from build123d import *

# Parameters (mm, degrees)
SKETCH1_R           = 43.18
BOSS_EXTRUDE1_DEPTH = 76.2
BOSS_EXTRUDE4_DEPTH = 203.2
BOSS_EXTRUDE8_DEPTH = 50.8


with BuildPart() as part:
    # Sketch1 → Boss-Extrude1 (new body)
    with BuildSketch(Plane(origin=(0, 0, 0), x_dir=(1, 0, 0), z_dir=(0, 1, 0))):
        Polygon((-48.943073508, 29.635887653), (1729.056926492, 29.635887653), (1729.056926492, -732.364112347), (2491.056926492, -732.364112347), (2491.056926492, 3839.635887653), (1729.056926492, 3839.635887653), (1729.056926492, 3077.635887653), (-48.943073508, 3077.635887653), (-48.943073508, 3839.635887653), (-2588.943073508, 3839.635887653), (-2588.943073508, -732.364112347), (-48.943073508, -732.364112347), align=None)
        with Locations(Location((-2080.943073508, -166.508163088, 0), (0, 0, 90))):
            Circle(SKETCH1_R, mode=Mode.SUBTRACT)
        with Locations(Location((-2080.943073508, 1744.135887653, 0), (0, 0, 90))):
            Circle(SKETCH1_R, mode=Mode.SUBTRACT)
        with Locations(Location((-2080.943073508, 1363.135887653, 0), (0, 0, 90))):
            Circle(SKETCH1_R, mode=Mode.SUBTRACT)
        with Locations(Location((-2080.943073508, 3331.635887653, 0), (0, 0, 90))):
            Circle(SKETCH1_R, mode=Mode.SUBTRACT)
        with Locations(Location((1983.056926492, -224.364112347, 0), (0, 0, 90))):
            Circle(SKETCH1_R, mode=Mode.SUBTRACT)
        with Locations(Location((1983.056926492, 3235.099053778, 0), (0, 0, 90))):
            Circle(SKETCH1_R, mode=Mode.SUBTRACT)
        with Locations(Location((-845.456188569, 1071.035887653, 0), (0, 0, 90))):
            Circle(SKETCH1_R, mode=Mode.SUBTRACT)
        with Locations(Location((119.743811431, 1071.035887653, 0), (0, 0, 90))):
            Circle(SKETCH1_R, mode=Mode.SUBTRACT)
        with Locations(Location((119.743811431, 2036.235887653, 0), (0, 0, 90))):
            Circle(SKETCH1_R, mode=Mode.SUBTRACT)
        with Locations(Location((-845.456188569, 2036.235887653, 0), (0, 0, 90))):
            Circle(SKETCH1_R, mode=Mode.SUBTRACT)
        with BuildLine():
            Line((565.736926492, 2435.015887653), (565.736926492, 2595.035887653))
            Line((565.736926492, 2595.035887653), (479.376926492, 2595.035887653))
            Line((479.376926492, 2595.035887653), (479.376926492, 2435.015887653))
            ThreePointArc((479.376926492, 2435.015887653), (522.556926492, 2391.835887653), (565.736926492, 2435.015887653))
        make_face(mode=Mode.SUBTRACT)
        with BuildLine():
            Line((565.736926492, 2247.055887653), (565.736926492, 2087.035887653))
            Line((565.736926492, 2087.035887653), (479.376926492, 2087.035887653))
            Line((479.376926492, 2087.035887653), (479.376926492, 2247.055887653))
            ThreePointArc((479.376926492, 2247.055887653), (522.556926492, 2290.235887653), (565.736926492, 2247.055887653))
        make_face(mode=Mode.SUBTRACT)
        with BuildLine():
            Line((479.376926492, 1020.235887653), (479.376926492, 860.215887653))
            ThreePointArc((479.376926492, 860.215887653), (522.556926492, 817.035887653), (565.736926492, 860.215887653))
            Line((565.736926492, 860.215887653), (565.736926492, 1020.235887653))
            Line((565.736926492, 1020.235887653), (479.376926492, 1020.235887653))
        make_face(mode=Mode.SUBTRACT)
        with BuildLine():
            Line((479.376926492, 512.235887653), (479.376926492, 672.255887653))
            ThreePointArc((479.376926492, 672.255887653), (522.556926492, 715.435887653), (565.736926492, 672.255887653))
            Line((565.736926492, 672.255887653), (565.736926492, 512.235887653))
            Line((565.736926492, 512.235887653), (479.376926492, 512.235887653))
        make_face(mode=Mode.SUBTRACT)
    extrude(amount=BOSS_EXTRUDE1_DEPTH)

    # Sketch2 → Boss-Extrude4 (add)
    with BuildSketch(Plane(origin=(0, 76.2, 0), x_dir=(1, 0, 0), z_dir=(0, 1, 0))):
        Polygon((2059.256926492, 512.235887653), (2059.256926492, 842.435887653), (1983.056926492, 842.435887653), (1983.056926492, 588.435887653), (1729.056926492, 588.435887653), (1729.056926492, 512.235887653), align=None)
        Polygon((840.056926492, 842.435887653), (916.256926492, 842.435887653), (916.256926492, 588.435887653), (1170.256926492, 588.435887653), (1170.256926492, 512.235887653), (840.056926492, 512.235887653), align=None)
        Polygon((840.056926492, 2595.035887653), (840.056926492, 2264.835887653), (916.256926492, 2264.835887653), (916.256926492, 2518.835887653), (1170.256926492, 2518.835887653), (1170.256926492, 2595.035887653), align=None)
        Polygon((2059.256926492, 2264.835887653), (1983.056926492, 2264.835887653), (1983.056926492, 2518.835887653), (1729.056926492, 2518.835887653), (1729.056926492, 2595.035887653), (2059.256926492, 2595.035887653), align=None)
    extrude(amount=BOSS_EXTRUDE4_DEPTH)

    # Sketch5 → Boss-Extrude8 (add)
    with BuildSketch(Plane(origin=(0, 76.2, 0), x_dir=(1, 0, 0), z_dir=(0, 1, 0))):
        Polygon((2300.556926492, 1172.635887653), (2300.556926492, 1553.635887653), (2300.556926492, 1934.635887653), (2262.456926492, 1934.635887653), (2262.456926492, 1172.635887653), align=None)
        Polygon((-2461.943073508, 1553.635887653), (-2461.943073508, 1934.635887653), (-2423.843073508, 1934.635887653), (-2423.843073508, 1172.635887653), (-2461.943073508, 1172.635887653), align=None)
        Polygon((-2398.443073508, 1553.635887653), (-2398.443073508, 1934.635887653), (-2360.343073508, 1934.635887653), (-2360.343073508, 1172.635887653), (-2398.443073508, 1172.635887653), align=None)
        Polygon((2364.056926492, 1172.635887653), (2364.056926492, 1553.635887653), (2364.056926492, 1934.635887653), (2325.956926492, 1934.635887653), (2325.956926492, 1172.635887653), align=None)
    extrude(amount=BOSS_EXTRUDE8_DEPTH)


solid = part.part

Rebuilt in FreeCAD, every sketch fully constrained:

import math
import FreeCAD as App
import Part
import Sketcher
Q = App.Units.Quantity


def add_polygon(sketch, points):
    """Adds a closed chain of lines whose ends are joined by coincident constraints."""
    first, n = sketch.GeometryCount, len(points)
    for a, b in zip(points, points[1:] + points[:1]):
        sketch.addGeometry(Part.LineSegment(App.Vector(*a, 0), App.Vector(*b, 0)), False)
    for i in range(n):
        sketch.addConstraint(Sketcher.Constraint("Coincident", first + i, 2, first + (i + 1) % n, 1))

doc = App.newDocument("Part")
params = doc.addObject("Spreadsheet::Sheet", "Params")
for row, (alias, value) in enumerate([
    ("sketch1_diameter", "3.4 in"),
    ("sketch1_width", "70 in"),
    ("sketch1_width2", "30 in"),
    ("sketch1_width3", "100 in"),
    ("sketch1_height", "180 in"),
    ("pad1_length", "3 in"),
    ("sketch2_width", "3 in"),
    ("sketch2_width2", "10 in"),
    ("pad2_length", "8 in"),
    ("sketch3_height", "30 in"),
    ("sketch3_width", "1.5 in"),
    ("pad3_length", "2 in"),
], start=1):
    params.set(f"A{row}", alias)
    params.set(f"B{row}", "=" + value)
    params.setAlias(f"B{row}", alias)

body = doc.addObject("PartDesign::Body", "Body")

# Sketch on XZ plane
sketch1 = body.newObject("Sketcher::SketchObject", "Sketch")
sketch1.AttachmentSupport = (doc.getObject("XZ_Plane"), [""])
sketch1.MapMode = "FlatFace"
add_polygon(sketch1, [(-49, -30), (1729, -30), (1729, 732), (2491, 732), (2491, -3840), (1729, -3840), (1729, -3078), (-49, -3078), (-49, -3840), (-2589, -3840), (-2589, 732), (-49, 732)])  # lines 0-11
sketch1.addGeometry(Part.Circle(App.Vector(-2081, 167, 0), App.Vector(0, 0, 1), 43), False)  # 12
sketch1.addGeometry(Part.Circle(App.Vector(-2081, -1363, 0), App.Vector(0, 0, 1), 43), False)  # 13
sketch1.addGeometry(Part.Circle(App.Vector(-845, -1071, 0), App.Vector(0, 0, 1), 43), False)  # 14
sketch1.addGeometry(Part.LineSegment(App.Vector(566, -512, 0), App.Vector(479, -512, 0)), False)  # 15
sketch1.addGeometry(Part.LineSegment(App.Vector(479, -512, 0), App.Vector(479, -672, 0)), False)  # 16
sketch1.addGeometry(Part.ArcOfCircle(Part.Circle(App.Vector(523, -672, 0), App.Vector(0, 0, 1), 43), math.radians(180), math.radians(360)), False)  # 17
sketch1.addGeometry(Part.LineSegment(App.Vector(566, -672, 0), App.Vector(566, -512, 0)), False)  # 18
sketch1.addGeometry(Part.Circle(App.Vector(1983, 224, 0), App.Vector(0, 0, 1), 43), False)  # 19
sketch1.addGeometry(Part.Circle(App.Vector(120, -1071, 0), App.Vector(0, 0, 1), 43), False)  # 20
sketch1.addGeometry(Part.LineSegment(App.Vector(479, -860, 0), App.Vector(479, -1020, 0)), False)  # 21
sketch1.addGeometry(Part.LineSegment(App.Vector(479, -1020, 0), App.Vector(566, -1020, 0)), False)  # 22
sketch1.addGeometry(Part.LineSegment(App.Vector(566, -1020, 0), App.Vector(566, -860, 0)), False)  # 23
sketch1.addGeometry(Part.ArcOfCircle(Part.Circle(App.Vector(523, -860, 0), App.Vector(0, 0, 1), 43), math.radians(0), math.radians(180)), False)  # 24
sketch1.addGeometry(Part.Circle(App.Vector(-2081, -1744, 0), App.Vector(0, 0, 1), 43), False)  # 25
sketch1.addGeometry(Part.Circle(App.Vector(-845, -2036, 0), App.Vector(0, 0, 1), 43), False)  # 26
sketch1.addGeometry(Part.Circle(App.Vector(-2081, -3332, 0), App.Vector(0, 0, 1), 43), False)  # 27
sketch1.addGeometry(Part.Circle(App.Vector(120, -2036, 0), App.Vector(0, 0, 1), 43), False)  # 28
sketch1.addGeometry(Part.ArcOfCircle(Part.Circle(App.Vector(523, -2247, 0), App.Vector(0, 0, 1), 43), math.radians(180), math.radians(360)), False)  # 29
sketch1.addGeometry(Part.LineSegment(App.Vector(566, -2247, 0), App.Vector(566, -2087, 0)), False)  # 30
sketch1.addGeometry(Part.LineSegment(App.Vector(566, -2087, 0), App.Vector(479, -2087, 0)), False)  # 31
sketch1.addGeometry(Part.LineSegment(App.Vector(479, -2087, 0), App.Vector(479, -2247, 0)), False)  # 32
sketch1.addGeometry(Part.LineSegment(App.Vector(566, -2595, 0), App.Vector(566, -2435, 0)), False)  # 33
sketch1.addGeometry(Part.ArcOfCircle(Part.Circle(App.Vector(523, -2435, 0), App.Vector(0, 0, 1), 43), math.radians(0), math.radians(180)), False)  # 34
sketch1.addGeometry(Part.LineSegment(App.Vector(479, -2435, 0), App.Vector(479, -2595, 0)), False)  # 35
sketch1.addGeometry(Part.LineSegment(App.Vector(479, -2595, 0), App.Vector(566, -2595, 0)), False)  # 36
sketch1.addGeometry(Part.Circle(App.Vector(1983, -3235, 0), App.Vector(0, 0, 1), 43), False)  # 37
sketch1.addConstraint(Sketcher.Constraint("Coincident", 15, 2, 16, 1))
sketch1.addConstraint(Sketcher.Constraint("Tangent", 16, 2, 17, 1))
sketch1.addConstraint(Sketcher.Constraint("Tangent", 17, 2, 18, 1))
sketch1.addConstraint(Sketcher.Constraint("Coincident", 18, 2, 15, 1))
sketch1.addConstraint(Sketcher.Constraint("Coincident", 21, 2, 22, 1))
sketch1.addConstraint(Sketcher.Constraint("Coincident", 22, 2, 23, 1))
sketch1.addConstraint(Sketcher.Constraint("Tangent", 23, 2, 24, 1))
sketch1.addConstraint(Sketcher.Constraint("Tangent", 24, 2, 21, 1))
sketch1.addConstraint(Sketcher.Constraint("Tangent", 29, 2, 30, 1))
sketch1.addConstraint(Sketcher.Constraint("Coincident", 30, 2, 31, 1))
sketch1.addConstraint(Sketcher.Constraint("Coincident", 31, 2, 32, 1))
sketch1.addConstraint(Sketcher.Constraint("Tangent", 32, 2, 29, 1))
sketch1.addConstraint(Sketcher.Constraint("Tangent", 33, 2, 34, 1))
sketch1.addConstraint(Sketcher.Constraint("Tangent", 34, 2, 35, 1))
sketch1.addConstraint(Sketcher.Constraint("Coincident", 35, 2, 36, 1))
sketch1.addConstraint(Sketcher.Constraint("Coincident", 36, 2, 33, 1))
sketch1.addConstraint(Sketcher.Constraint("Horizontal", 0))
sketch1.addConstraint(Sketcher.Constraint("Vertical", 1))
sketch1.addConstraint(Sketcher.Constraint("Horizontal", 2))
sketch1.addConstraint(Sketcher.Constraint("Vertical", 3))
sketch1.addConstraint(Sketcher.Constraint("Horizontal", 4))
sketch1.addConstraint(Sketcher.Constraint("Vertical", 5))
sketch1.addConstraint(Sketcher.Constraint("Horizontal", 6))
sketch1.addConstraint(Sketcher.Constraint("Vertical", 7))
sketch1.addConstraint(Sketcher.Constraint("Horizontal", 8))
sketch1.addConstraint(Sketcher.Constraint("Vertical", 9))
sketch1.addConstraint(Sketcher.Constraint("Horizontal", 10))
sketch1.addConstraint(Sketcher.Constraint("Vertical", 11))
sketch1.addConstraint(Sketcher.Constraint("Horizontal", 15))
sketch1.addConstraint(Sketcher.Constraint("Vertical", 16))
sketch1.addConstraint(Sketcher.Constraint("Vertical", 18))
sketch1.addConstraint(Sketcher.Constraint("Vertical", 21))
sketch1.addConstraint(Sketcher.Constraint("Horizontal", 22))
sketch1.addConstraint(Sketcher.Constraint("Vertical", 23))
sketch1.addConstraint(Sketcher.Constraint("Vertical", 30))
sketch1.addConstraint(Sketcher.Constraint("Horizontal", 31))
sketch1.addConstraint(Sketcher.Constraint("Vertical", 32))
sketch1.addConstraint(Sketcher.Constraint("Vertical", 33))
sketch1.addConstraint(Sketcher.Constraint("Vertical", 35))
sketch1.addConstraint(Sketcher.Constraint("Horizontal", 36))
sketch1.addConstraint(Sketcher.Constraint("Equal", 12, 13))
sketch1.addConstraint(Sketcher.Constraint("Equal", 13, 14))
sketch1.addConstraint(Sketcher.Constraint("Equal", 14, 17))
sketch1.addConstraint(Sketcher.Constraint("Equal", 17, 19))
sketch1.addConstraint(Sketcher.Constraint("Equal", 19, 20))
sketch1.addConstraint(Sketcher.Constraint("Equal", 20, 24))
sketch1.addConstraint(Sketcher.Constraint("Equal", 24, 25))
sketch1.addConstraint(Sketcher.Constraint("Equal", 25, 26))
sketch1.addConstraint(Sketcher.Constraint("Equal", 26, 27))
sketch1.addConstraint(Sketcher.Constraint("Equal", 27, 28))
sketch1.addConstraint(Sketcher.Constraint("Equal", 28, 29))
sketch1.addConstraint(Sketcher.Constraint("Equal", 29, 34))
sketch1.addConstraint(Sketcher.Constraint("Equal", 34, 37))
sketch1.addConstraint(Sketcher.Constraint("Horizontal", 14, 3, 20, 3))
sketch1.addConstraint(Sketcher.Constraint("Horizontal", 26, 3, 28, 3))
sketch1.addConstraint(Sketcher.Constraint("Horizontal", 4, 2, 7, 2))
sketch1.addConstraint(Sketcher.Constraint("Horizontal", 2, 2, 9, 2))
sketch1.addConstraint(Sketcher.Constraint("Vertical", 12, 3, 13, 3))
sketch1.addConstraint(Sketcher.Constraint("Vertical", 17, 3, 24, 3))
sketch1.addConstraint(Sketcher.Constraint("Vertical", 13, 3, 25, 3))
sketch1.addConstraint(Sketcher.Constraint("Vertical", 14, 3, 26, 3))
sketch1.addConstraint(Sketcher.Constraint("Vertical", 25, 3, 27, 3))
sketch1.addConstraint(Sketcher.Constraint("Vertical", 20, 3, 28, 3))
sketch1.addConstraint(Sketcher.Constraint("Vertical", 24, 3, 29, 3))
sketch1.addConstraint(Sketcher.Constraint("Vertical", 29, 3, 34, 3))
sketch1.addConstraint(Sketcher.Constraint("Vertical", 19, 3, 37, 3))
sketch1.addConstraint(Sketcher.Constraint("Vertical", 1, 2, 4, 2))
sketch1.addConstraint(Sketcher.Constraint("Vertical", 7, 2, 10, 2))
sketch1.addConstraint(Sketcher.Constraint("Equal", 4, 1))
sketch1.addConstraint(Sketcher.Constraint("Equal", 1, 5))
sketch1.addConstraint(Sketcher.Constraint("Equal", 18, 21))
sketch1.addConstraint(Sketcher.Constraint("Equal", 23, 30))
sketch1.addConstraint(Sketcher.Constraint("Equal", 32, 33))
sketch1.addConstraint(Sketcher.Constraint("Diameter", 12, Q("3.4 in")))
sketch1.addConstraint(Sketcher.Constraint("DistanceX", 0, 1, 0, 2, Q("70 in")))
sketch1.addConstraint(Sketcher.Constraint("DistanceX", 2, 1, 2, 2, Q("30 in")))
sketch1.addConstraint(Sketcher.Constraint("DistanceX", 8, 2, 8, 1, Q("100 in")))
sketch1.addConstraint(Sketcher.Constraint("DistanceY", 3, 2, 3, 1, Q("180 in")))
sketch1.addConstraint(Sketcher.Constraint("DistanceY", 16, 2, 16, 1, Q("6.3 in")))
sketch1.addConstraint(Sketcher.Constraint("DistanceY", 14, 3, 19, 3, Q("51 in")))
sketch1.addConstraint(Sketcher.Constraint("DistanceX", 12, 3, 19, 3, Q("160 in")))
sketch1.addConstraint(Sketcher.Constraint("DistanceX", 14, 3, 20, 3, Q("38 in")))
sketch1.addConstraint(Sketcher.Constraint("DistanceY", 25, 3, 13, 3, Q("15 in")))
sketch1.addConstraint(Sketcher.Constraint("DistanceY", 26, 3, 14, 3, Q("38 in")))
sketch1.addConstraint(Sketcher.Constraint("DistanceY", 27, 3, 26, 3, Q("51 in")))
sketch1.addConstraint(Sketcher.Constraint("DistanceY", 29, 3, 17, 3, Q("62 in")))
sketch1.addConstraint(Sketcher.Constraint("DistanceY", 34, 3, 24, 3, Q("62 in")))
sketch1.addConstraint(Sketcher.Constraint("DistanceX", 0, 2, 19, 3, Q("10 in")))
sketch1.addConstraint(Sketcher.Constraint("DistanceY", 0, 2, 19, 3, Q("10 in")))
sketch1.addConstraint(Sketcher.Constraint("DistanceY", 20, 3, 15, 2, Q("22 in")))
sketch1.addConstraint(Sketcher.Constraint("DistanceY", 20, 3, 21, 2, Q("2 in")))
sketch1.addConstraint(Sketcher.Constraint("DistanceY", 13, 3, 14, 3, Q("11.5 in")))
sketch1.addConstraint(Sketcher.Constraint("DistanceX", 13, 3, 17, 3, Q("102.5 in")))
sketch1.addConstraint(Sketcher.Constraint("DistanceX", 14, 3, -1, 1, Q("845.456189 mm")))
sketch1.addConstraint(Sketcher.Constraint("DistanceY", 13, 3, 12, 3, Q("1529.644051 mm")))
sketch1.addConstraint(Sketcher.Constraint("DistanceX", 12, 3, -1, 1, Q("2080.943074 mm")))
sketch1.addConstraint(Sketcher.Constraint("DistanceY", -1, 1, 12, 3, Q("166.508163 mm")))
sketch1.addConstraint(Sketcher.Constraint("DistanceY", 37, 3, -1, 1, Q("3235.099054 mm")))
sketch1.setExpression("Constraints[85]", "Params.sketch1_diameter")
sketch1.setExpression("Constraints[86]", "Params.sketch1_width")
sketch1.setExpression("Constraints[87]", "Params.sketch1_width2")
sketch1.setExpression("Constraints[88]", "Params.sketch1_width3")
sketch1.setExpression("Constraints[89]", "Params.sketch1_height")
pad1 = body.newObject("PartDesign::Pad", "Pad")
pad1.Profile = sketch1
pad1.setExpression("Length", "Params.pad1_length")
pad1.Reversed = True

# Sketch on XZ plane
sketch2 = body.newObject("Sketcher::SketchObject", "Sketch001")
sketch2.AttachmentSupport = (doc.getObject("XZ_Plane"), [""])
sketch2.MapMode = "FlatFace"
sketch2.AttachmentOffset = App.Placement(App.Vector(0, 0, -3 * 25.4), App.Rotation())
add_polygon(sketch2, [(2059, -512), (2059, -842), (1983, -842), (1983, -588), (1729, -588), (1729, -512)])  # lines 0-5
add_polygon(sketch2, [(916, -842), (840, -842), (840, -512), (1170, -512), (1170, -588), (916, -588)])  # lines 6-11
add_polygon(sketch2, [(840, -2595), (840, -2265), (916, -2265), (916, -2519), (1170, -2519), (1170, -2595)])  # lines 12-17
add_polygon(sketch2, [(1983, -2265), (2059, -2265), (2059, -2595), (1729, -2595), (1729, -2519), (1983, -2519)])  # lines 18-23
sketch2.addConstraint(Sketcher.Constraint("Vertical", 0))
sketch2.addConstraint(Sketcher.Constraint("Horizontal", 1))
sketch2.addConstraint(Sketcher.Constraint("Vertical", 2))
sketch2.addConstraint(Sketcher.Constraint("Horizontal", 3))
sketch2.addConstraint(Sketcher.Constraint("Vertical", 4))
sketch2.addConstraint(Sketcher.Constraint("Horizontal", 5))
sketch2.addConstraint(Sketcher.Constraint("Horizontal", 6))
sketch2.addConstraint(Sketcher.Constraint("Vertical", 7))
sketch2.addConstraint(Sketcher.Constraint("Horizontal", 8))
sketch2.addConstraint(Sketcher.Constraint("Vertical", 9))
sketch2.addConstraint(Sketcher.Constraint("Horizontal", 10))
sketch2.addConstraint(Sketcher.Constraint("Vertical", 11))
sketch2.addConstraint(Sketcher.Constraint("Vertical", 12))
sketch2.addConstraint(Sketcher.Constraint("Horizontal", 13))
sketch2.addConstraint(Sketcher.Constraint("Vertical", 14))
sketch2.addConstraint(Sketcher.Constraint("Horizontal", 15))
sketch2.addConstraint(Sketcher.Constraint("Vertical", 16))
sketch2.addConstraint(Sketcher.Constraint("Horizontal", 17))
sketch2.addConstraint(Sketcher.Constraint("Horizontal", 18))
sketch2.addConstraint(Sketcher.Constraint("Vertical", 19))
sketch2.addConstraint(Sketcher.Constraint("Horizontal", 20))
sketch2.addConstraint(Sketcher.Constraint("Vertical", 21))
sketch2.addConstraint(Sketcher.Constraint("Horizontal", 22))
sketch2.addConstraint(Sketcher.Constraint("Vertical", 23))
sketch2.addConstraint(Sketcher.Constraint("Horizontal", 1, 2, 6, 2))
sketch2.addConstraint(Sketcher.Constraint("Horizontal", 5, 2, 7, 2))
sketch2.addConstraint(Sketcher.Constraint("Horizontal", 3, 2, 9, 2))
sketch2.addConstraint(Sketcher.Constraint("Horizontal", 13, 2, 18, 2))
sketch2.addConstraint(Sketcher.Constraint("Horizontal", 17, 2, 19, 2))
sketch2.addConstraint(Sketcher.Constraint("Horizontal", 15, 2, 21, 2))
sketch2.addConstraint(Sketcher.Constraint("Vertical", 7, 2, 12, 2))
sketch2.addConstraint(Sketcher.Constraint("Vertical", 11, 2, 13, 2))
sketch2.addConstraint(Sketcher.Constraint("Vertical", 9, 2, 15, 2))
sketch2.addConstraint(Sketcher.Constraint("Vertical", 5, 2, 18, 2))
sketch2.addConstraint(Sketcher.Constraint("Vertical", 4, 2, 20, 2))
sketch2.addConstraint(Sketcher.Constraint("Vertical", 2, 2, 22, 2))
sketch2.addConstraint(Sketcher.Constraint("Equal", 1, 6))
sketch2.addConstraint(Sketcher.Constraint("Equal", 5, 8))
sketch2.addConstraint(Sketcher.Constraint("Equal", 20, 0))
sketch2.addConstraint(Sketcher.Constraint("Equal", 22, 2))
sketch2.addConstraint(Sketcher.Constraint("Equal", 7, 12))
sketch2.addConstraint(Sketcher.Constraint("Equal", 11, 14))
sketch2.addConstraint(Sketcher.Constraint("DistanceX", 1, 2, 1, 1, Q("3 in")))
sketch2.addConstraint(Sketcher.Constraint("DistanceX", 3, 2, 3, 1, Q("10 in")))
sketch2.addConstraint(Sketcher.Constraint("DistanceX", 6, 2, 3, 2, Q("35 in")))
sketch2.addConstraint(Sketcher.Constraint("DistanceY", 12, 2, 6, 2, Q("56 in")))
sketch2.addConstraint(Sketcher.Constraint("DistanceX", -1, 1, 0, 2, Q("2059.256926 mm")))
sketch2.addConstraint(Sketcher.Constraint("DistanceY", 0, 2, -1, 1, Q("842.435888 mm")))
sketch2.setExpression("Constraints[66]", "Params.sketch2_width")
sketch2.setExpression("Constraints[67]", "Params.sketch2_width2")
pad2 = body.newObject("PartDesign::Pad", "Pad001")
pad2.Profile = sketch2
pad2.setExpression("Length", "Params.pad2_length")
pad2.Reversed = True

# Sketch on XZ plane
sketch3 = body.newObject("Sketcher::SketchObject", "Sketch002")
sketch3.AttachmentSupport = (doc.getObject("XZ_Plane"), [""])
sketch3.MapMode = "FlatFace"
sketch3.AttachmentOffset = App.Placement(App.Vector(0, 0, -3 * 25.4), App.Rotation())
add_polygon(sketch3, [(2301, -1173), (2301, -1935), (2262, -1935), (2262, -1173)])  # lines 0-3
add_polygon(sketch3, [(-2462, -1935), (-2462, -1173), (-2424, -1173), (-2424, -1935)])  # lines 4-7
add_polygon(sketch3, [(-2398, -1935), (-2398, -1173), (-2360, -1173), (-2360, -1935)])  # lines 8-11
add_polygon(sketch3, [(2364, -1173), (2364, -1935), (2326, -1935), (2326, -1173)])  # lines 12-15
sketch3.addConstraint(Sketcher.Constraint("Vertical", 0))
sketch3.addConstraint(Sketcher.Constraint("Horizontal", 1))
sketch3.addConstraint(Sketcher.Constraint("Vertical", 2))
sketch3.addConstraint(Sketcher.Constraint("Horizontal", 3))
sketch3.addConstraint(Sketcher.Constraint("Vertical", 4))
sketch3.addConstraint(Sketcher.Constraint("Horizontal", 5))
sketch3.addConstraint(Sketcher.Constraint("Vertical", 6))
sketch3.addConstraint(Sketcher.Constraint("Horizontal", 7))
sketch3.addConstraint(Sketcher.Constraint("Vertical", 8))
sketch3.addConstraint(Sketcher.Constraint("Horizontal", 9))
sketch3.addConstraint(Sketcher.Constraint("Vertical", 10))
sketch3.addConstraint(Sketcher.Constraint("Horizontal", 11))
sketch3.addConstraint(Sketcher.Constraint("Vertical", 12))
sketch3.addConstraint(Sketcher.Constraint("Horizontal", 13))
sketch3.addConstraint(Sketcher.Constraint("Vertical", 14))
sketch3.addConstraint(Sketcher.Constraint("Horizontal", 15))
sketch3.addConstraint(Sketcher.Constraint("Horizontal", 3, 2, 4, 2))
sketch3.addConstraint(Sketcher.Constraint("Horizontal", 1, 2, 6, 2))
sketch3.addConstraint(Sketcher.Constraint("Horizontal", 5, 2, 8, 2))
sketch3.addConstraint(Sketcher.Constraint("Horizontal", 7, 2, 10, 2))
sketch3.addConstraint(Sketcher.Constraint("Horizontal", 11, 2, 12, 2))
sketch3.addConstraint(Sketcher.Constraint("Horizontal", 9, 2, 14, 2))
sketch3.addConstraint(Sketcher.Constraint("Equal", 3, 5))
sketch3.addConstraint(Sketcher.Constraint("Equal", 7, 9))
sketch3.addConstraint(Sketcher.Constraint("Equal", 11, 13))
sketch3.addConstraint(Sketcher.Constraint("DistanceY", 0, 2, 0, 1, Q("30 in")))
sketch3.addConstraint(Sketcher.Constraint("DistanceX", 1, 2, 1, 1, Q("1.5 in")))
sketch3.addConstraint(Sketcher.Constraint("DistanceX", 4, 2, 2, 2, Q("186 in")))
sketch3.addConstraint(Sketcher.Constraint("DistanceX", 5, 2, 8, 2, Q("1 in")))
sketch3.addConstraint(Sketcher.Constraint("DistanceX", 1, 2, 12, 2, Q("4 in")))
sketch3.addConstraint(Sketcher.Constraint("DistanceX", -1, 1, 0, 2, Q("2300.556926 mm")))
sketch3.addConstraint(Sketcher.Constraint("DistanceY", 0, 2, -1, 1, Q("1934.635888 mm")))
sketch3.setExpression("Constraints[41]", "Params.sketch3_height")
sketch3.setExpression("Constraints[42]", "Params.sketch3_width")
pad3 = body.newObject("PartDesign::Pad", "Pad002")
pad3.Profile = sketch3
pad3.setExpression("Length", "Params.pad3_length")
pad3.Reversed = True

doc.recompute()
